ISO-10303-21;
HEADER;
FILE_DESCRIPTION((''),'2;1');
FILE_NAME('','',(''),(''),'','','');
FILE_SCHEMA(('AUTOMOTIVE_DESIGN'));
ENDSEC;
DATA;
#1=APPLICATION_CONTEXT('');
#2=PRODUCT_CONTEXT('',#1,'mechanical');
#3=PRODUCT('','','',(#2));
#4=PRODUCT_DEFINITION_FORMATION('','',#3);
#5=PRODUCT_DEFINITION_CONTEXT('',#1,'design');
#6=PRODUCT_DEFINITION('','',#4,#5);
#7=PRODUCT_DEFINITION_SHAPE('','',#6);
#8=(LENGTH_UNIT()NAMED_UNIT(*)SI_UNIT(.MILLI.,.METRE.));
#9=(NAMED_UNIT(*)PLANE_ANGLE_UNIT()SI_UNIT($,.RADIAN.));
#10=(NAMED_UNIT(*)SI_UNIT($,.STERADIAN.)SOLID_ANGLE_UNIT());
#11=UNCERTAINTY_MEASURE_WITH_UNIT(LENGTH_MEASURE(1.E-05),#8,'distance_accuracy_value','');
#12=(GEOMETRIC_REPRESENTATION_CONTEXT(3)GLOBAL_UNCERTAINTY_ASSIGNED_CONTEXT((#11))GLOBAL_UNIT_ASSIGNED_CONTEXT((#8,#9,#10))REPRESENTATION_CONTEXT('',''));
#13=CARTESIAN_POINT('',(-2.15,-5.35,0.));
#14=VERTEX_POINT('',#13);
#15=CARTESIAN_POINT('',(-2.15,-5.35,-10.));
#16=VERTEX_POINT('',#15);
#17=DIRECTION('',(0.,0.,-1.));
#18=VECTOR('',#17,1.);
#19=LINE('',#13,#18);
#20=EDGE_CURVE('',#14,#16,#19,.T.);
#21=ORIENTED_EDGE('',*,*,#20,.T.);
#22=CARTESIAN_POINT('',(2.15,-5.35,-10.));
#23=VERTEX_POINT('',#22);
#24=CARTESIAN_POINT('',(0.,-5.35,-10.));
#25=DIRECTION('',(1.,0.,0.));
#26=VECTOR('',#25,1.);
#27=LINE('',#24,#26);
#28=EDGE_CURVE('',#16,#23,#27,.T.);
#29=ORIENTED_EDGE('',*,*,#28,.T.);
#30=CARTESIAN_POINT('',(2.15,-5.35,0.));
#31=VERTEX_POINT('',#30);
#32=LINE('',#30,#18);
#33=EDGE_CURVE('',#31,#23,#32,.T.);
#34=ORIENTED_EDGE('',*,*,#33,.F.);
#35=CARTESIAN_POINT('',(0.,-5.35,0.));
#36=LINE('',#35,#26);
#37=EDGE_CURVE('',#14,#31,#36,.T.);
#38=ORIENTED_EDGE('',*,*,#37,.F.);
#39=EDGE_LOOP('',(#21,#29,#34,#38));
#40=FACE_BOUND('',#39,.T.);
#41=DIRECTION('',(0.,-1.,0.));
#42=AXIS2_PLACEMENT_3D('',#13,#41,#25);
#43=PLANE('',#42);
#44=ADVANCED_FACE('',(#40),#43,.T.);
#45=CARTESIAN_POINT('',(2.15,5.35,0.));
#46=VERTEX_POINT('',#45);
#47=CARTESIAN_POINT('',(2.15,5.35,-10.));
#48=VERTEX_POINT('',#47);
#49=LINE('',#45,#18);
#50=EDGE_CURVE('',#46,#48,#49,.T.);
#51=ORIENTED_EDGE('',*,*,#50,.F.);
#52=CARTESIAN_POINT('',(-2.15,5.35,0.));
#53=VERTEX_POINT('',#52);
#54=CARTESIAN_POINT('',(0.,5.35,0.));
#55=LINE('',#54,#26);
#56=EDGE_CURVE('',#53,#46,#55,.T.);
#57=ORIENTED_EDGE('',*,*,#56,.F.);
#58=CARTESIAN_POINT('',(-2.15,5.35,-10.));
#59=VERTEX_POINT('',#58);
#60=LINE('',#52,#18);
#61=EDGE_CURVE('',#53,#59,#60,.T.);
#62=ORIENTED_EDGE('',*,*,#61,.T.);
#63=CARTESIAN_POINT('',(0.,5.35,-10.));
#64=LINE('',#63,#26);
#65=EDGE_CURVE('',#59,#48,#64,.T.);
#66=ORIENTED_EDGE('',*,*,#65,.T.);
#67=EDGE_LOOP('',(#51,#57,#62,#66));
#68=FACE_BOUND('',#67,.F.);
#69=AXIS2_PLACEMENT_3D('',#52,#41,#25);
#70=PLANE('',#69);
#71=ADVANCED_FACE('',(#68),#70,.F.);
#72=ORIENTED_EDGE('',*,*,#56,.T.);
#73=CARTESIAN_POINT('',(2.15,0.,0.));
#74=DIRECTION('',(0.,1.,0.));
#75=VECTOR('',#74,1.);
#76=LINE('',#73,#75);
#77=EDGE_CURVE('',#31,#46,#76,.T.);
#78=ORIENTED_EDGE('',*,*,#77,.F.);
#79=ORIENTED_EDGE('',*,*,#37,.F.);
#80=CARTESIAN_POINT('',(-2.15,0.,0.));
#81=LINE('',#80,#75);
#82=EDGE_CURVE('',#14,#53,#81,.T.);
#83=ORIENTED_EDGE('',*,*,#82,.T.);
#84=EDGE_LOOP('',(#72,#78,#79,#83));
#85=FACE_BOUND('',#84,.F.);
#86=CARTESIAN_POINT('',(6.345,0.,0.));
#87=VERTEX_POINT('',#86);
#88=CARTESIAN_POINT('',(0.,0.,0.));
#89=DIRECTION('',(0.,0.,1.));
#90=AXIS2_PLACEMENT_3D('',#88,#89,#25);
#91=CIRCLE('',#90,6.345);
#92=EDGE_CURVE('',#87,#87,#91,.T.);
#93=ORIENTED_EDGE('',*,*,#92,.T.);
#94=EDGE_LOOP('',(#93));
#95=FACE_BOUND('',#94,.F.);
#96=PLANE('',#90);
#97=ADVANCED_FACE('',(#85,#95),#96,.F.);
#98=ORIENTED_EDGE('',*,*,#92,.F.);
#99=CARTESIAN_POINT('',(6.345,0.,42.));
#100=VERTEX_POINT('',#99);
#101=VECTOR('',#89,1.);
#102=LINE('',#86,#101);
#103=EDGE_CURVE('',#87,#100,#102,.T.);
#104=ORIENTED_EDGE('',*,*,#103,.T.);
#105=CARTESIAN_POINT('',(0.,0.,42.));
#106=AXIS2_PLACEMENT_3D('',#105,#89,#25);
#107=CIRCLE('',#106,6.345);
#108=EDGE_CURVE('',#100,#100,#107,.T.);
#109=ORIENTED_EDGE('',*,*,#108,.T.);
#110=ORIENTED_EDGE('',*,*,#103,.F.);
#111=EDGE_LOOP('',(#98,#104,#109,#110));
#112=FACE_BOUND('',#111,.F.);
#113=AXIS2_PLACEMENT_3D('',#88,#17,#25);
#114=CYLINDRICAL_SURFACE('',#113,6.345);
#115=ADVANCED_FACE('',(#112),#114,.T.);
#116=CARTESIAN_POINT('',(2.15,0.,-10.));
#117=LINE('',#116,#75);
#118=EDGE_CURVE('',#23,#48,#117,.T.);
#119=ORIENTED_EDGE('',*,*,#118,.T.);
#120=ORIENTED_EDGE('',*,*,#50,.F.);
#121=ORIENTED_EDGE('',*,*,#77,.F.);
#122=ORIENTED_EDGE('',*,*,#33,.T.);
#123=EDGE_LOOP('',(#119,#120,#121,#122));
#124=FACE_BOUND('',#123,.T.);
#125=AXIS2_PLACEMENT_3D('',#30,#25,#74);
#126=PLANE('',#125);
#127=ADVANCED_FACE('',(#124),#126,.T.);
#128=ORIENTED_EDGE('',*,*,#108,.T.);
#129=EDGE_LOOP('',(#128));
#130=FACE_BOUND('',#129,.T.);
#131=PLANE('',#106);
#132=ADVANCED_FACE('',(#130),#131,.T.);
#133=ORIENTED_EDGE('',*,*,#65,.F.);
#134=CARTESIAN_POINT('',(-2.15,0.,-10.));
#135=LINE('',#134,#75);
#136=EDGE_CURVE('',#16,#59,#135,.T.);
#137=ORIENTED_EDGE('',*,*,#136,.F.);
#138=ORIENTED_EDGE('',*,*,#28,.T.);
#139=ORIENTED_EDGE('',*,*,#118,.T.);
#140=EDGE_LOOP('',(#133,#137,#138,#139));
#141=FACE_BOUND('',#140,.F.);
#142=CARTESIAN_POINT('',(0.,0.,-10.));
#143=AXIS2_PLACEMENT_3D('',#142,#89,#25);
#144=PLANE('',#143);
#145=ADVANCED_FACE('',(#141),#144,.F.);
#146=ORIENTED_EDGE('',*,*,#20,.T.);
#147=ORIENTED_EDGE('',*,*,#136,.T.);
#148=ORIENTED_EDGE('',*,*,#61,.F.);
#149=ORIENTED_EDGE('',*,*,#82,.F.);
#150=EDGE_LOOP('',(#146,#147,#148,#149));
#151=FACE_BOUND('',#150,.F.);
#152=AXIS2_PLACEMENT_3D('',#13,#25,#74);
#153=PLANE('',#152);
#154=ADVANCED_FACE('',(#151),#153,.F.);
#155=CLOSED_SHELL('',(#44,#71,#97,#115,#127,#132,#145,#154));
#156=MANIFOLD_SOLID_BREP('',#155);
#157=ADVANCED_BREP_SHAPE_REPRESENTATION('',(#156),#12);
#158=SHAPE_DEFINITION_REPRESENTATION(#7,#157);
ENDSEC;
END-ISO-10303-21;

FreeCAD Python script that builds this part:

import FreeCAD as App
import Part
import Sketcher
Q = App.Units.Quantity

doc = App.newDocument("Part")
body = doc.addObject("PartDesign::Body", "Body")

sketch1 = body.newObject("Sketcher::SketchObject", "Sketch")
sketch1.AttachmentSupport = (doc.getObject("XY_Plane"), [""])
sketch1.MapMode = "FlatFace"
sketch1.addGeometry(Part.Circle(App.Vector(0, 0, 0), App.Vector(0, 0, 1), 6), False)
sketch1.addConstraint(Sketcher.Constraint("Coincident", 0, 3, -1, 1))
sketch1.addConstraint(Sketcher.Constraint("Diameter", 0, Q("12.69 mm")))
pad1 = body.newObject("PartDesign::Pad", "Pad")
pad1.Profile = sketch1
pad1.Length = 42

sketch2 = body.newObject("Sketcher::SketchObject", "Sketch001")
sketch2.AttachmentSupport = (doc.getObject("XY_Plane"), [""])
sketch2.MapMode = "FlatFace"
sketch2.addGeometry(Part.LineSegment(App.Vector(-2.1, 5.3, 0), App.Vector(-2.1, -5.3, 0)), False)
sketch2.addGeometry(Part.LineSegment(App.Vector(-2.1, -5.3, 0), App.Vector(2.1, -5.3, 0)), False)
sketch2.addGeometry(Part.LineSegment(App.Vector(2.1, -5.3, 0), App.Vector(2.1, 5.3, 0)), False)
sketch2.addGeometry(Part.LineSegment(App.Vector(2.1, 5.3, 0), App.Vector(-2.1, 5.3, 0)), False)
sketch2.addConstraint(Sketcher.Constraint("Coincident", 0, 2, 1, 1))
sketch2.addConstraint(Sketcher.Constraint("Coincident", 1, 2, 2, 1))
sketch2.addConstraint(Sketcher.Constraint("Coincident", 2, 2, 3, 1))
sketch2.addConstraint(Sketcher.Constraint("Coincident", 3, 2, 0, 1))
sketch2.addConstraint(Sketcher.Constraint("Vertical", 0))
sketch2.addConstraint(Sketcher.Constraint("Horizontal", 1))
sketch2.addConstraint(Sketcher.Constraint("Vertical", 2))
sketch2.addConstraint(Sketcher.Constraint("Horizontal", 3))
sketch2.addConstraint(Sketcher.Constraint("Symmetric", 0, 2, 2, 2, -1, 1))
sketch2.addConstraint(Sketcher.Constraint("DistanceX", 1, 1, 1, 2, Q("4.3 mm")))
sketch2.addConstraint(Sketcher.Constraint("DistanceY", 0, 2, 0, 1, Q("10.7 mm")))
pad2 = body.newObject("PartDesign::Pad", "Pad001")
pad2.Profile = sketch2
pad2.Length = 10
pad2.Reversed = True

doc.recompute()
